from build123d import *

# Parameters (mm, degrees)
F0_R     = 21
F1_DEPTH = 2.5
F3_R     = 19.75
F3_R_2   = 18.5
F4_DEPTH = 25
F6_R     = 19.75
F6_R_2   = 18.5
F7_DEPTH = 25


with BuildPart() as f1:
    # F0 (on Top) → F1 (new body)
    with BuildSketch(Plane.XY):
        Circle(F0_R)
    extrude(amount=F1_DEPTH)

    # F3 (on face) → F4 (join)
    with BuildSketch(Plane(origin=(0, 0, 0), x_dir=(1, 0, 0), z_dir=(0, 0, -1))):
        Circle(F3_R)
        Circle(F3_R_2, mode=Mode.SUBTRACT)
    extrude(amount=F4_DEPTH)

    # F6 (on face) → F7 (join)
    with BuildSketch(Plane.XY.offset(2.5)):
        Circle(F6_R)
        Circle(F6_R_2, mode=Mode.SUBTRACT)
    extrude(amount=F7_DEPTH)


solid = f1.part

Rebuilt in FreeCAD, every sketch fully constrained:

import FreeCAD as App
import Part
import Sketcher
from FreeCAD import Vector
Q = App.Units.Quantity

doc = App.newDocument("Part")
body = doc.addObject("PartDesign::Body", "Body")

# Sketch on XY plane
sketch1 = doc.addObject("Sketcher::SketchObject", "Sketch")
body.addObject(sketch1)
sketch1.AttachmentSupport = (doc.XY_Plane, [""])
sketch1.MapMode = "FlatFace"
sketch1.addGeometry(Part.Circle(Vector(0, 0, 0), Vector(0, 0, 1), 21), False)
sketch1.addConstraint([
    Sketcher.Constraint("Coincident", 0, 3, -1, 1),
    Sketcher.Constraint("Diameter", 0, Q("42 mm")),
])
pad1 = doc.addObject("PartDesign::Pad", "Pad")
body.addObject(pad1)
pad1.Profile = sketch1
pad1.Length = 2.5

# Sketch on XY plane
sketch2 = doc.addObject("Sketcher::SketchObject", "Sketch001")
body.addObject(sketch2)
sketch2.AttachmentSupport = (doc.XY_Plane, [""])
sketch2.MapMode = "FlatFace"
sketch2.addGeometry([
    Part.Circle(Vector(0, 0, 0), Vector(0, 0, 1), 20),
    Part.Circle(Vector(0, 0, 0), Vector(0, 0, 1), 18),
], False)
sketch2.addConstraint([
    Sketcher.Constraint("Coincident", 0, 3, -1, 1),
    Sketcher.Constraint("Coincident", 1, 3, -1, 1),
    Sketcher.Constraint("Diameter", 1, Q("37 mm")),
    Sketcher.Constraint("Diameter", 0, Q("39.5 mm")),
])
pad2 = doc.addObject("PartDesign::Pad", "Pad001")
body.addObject(pad2)
pad2.Profile = sketch2
pad2.Length = 25
pad2.Reversed = True

# Sketch on XY plane
sketch3 = doc.addObject("Sketcher::SketchObject", "Sketch002")
body.addObject(sketch3)
sketch3.AttachmentSupport = (doc.XY_Plane, [""])
sketch3.MapMode = "FlatFace"
sketch3.AttachmentOffset = App.Placement(Vector(0, 0, 2.5), App.Rotation())
sketch3.addGeometry([
    Part.Circle(Vector(0, 0, 0), Vector(0, 0, 1), 20),
    Part.Circle(Vector(0, 0, 0), Vector(0, 0, 1), 18),
], False)
sketch3.addConstraint([
    Sketcher.Constraint("Coincident", 0, 3, -1, 1),
    Sketcher.Constraint("Coincident", 1, 3, -1, 1),
    Sketcher.Constraint("Diameter", 1, Q("37 mm")),
    Sketcher.Constraint("Diameter", 0, Q("39.5 mm")),
])
pad3 = doc.addObject("PartDesign::Pad", "Pad002")
body.addObject(pad3)
pad3.Profile = sketch3
pad3.Length = 25

doc.recompute()
